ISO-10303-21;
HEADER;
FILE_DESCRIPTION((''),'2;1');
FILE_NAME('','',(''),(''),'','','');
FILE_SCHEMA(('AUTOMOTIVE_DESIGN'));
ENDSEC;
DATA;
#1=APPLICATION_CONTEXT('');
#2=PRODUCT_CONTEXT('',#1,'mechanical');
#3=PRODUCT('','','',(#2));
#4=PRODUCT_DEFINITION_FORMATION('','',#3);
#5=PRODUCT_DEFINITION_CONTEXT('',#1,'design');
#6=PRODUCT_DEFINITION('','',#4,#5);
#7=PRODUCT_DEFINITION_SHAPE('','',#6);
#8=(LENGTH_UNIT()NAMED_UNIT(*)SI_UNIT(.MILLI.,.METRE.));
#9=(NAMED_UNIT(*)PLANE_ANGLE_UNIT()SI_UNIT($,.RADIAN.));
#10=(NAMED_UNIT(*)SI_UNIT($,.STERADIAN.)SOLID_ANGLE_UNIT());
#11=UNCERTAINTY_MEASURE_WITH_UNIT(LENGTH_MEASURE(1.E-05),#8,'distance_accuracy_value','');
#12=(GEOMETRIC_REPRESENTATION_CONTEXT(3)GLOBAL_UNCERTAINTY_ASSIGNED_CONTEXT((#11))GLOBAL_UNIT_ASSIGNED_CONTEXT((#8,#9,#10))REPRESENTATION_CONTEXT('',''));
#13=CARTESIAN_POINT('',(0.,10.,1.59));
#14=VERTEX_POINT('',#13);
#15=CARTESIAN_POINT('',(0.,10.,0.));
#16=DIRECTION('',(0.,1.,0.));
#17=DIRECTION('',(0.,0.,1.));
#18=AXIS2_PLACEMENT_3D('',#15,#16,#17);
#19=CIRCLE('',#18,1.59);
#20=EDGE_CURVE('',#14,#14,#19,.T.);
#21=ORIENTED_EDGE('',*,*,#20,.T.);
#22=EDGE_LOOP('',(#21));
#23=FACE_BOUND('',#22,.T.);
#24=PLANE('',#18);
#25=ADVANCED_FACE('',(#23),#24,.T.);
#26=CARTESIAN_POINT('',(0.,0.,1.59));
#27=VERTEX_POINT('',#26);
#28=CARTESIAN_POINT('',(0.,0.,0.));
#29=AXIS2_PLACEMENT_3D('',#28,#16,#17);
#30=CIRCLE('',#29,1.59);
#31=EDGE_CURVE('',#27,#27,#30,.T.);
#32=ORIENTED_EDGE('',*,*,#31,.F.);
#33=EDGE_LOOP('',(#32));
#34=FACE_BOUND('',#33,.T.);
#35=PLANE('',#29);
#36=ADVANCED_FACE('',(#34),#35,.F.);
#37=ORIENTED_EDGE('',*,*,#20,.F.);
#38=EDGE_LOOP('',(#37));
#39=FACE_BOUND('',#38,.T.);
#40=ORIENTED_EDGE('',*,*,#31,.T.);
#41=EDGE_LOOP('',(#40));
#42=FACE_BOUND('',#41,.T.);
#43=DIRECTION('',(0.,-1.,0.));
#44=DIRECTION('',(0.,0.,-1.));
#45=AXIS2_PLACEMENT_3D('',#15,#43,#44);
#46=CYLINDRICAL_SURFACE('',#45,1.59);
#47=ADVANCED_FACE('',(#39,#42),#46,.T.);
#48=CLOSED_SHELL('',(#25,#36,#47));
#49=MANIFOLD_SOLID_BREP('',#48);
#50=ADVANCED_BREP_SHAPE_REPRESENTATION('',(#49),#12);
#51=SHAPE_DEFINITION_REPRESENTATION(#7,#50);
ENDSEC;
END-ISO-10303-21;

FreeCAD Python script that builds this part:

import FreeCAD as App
import Part
import Sketcher
from FreeCAD import Vector
Q = App.Units.Quantity

doc = App.newDocument("Part")
body = doc.addObject("PartDesign::Body", "Body")

# Sketch on XZ plane
sketch1 = body.newObject("Sketcher::SketchObject", "Sketch")
sketch1.AttachmentSupport = (doc.getObject("XZ_Plane"), [""])
sketch1.MapMode = "FlatFace"
sketch1.addGeometry(Part.Circle(Vector(0, 0, 0), Vector(0, 0, 1), 1.59), False)
sketch1.addConstraint([
    Sketcher.Constraint("Coincident", 0, 3, -1, 1),
    Sketcher.Constraint("Diameter", 0, Q("3.18 mm")),
])
pad1 = body.newObject("PartDesign::Pad", "Pad")
pad1.Profile = sketch1
pad1.Length = 10
pad1.Reversed = True

doc.recompute()
